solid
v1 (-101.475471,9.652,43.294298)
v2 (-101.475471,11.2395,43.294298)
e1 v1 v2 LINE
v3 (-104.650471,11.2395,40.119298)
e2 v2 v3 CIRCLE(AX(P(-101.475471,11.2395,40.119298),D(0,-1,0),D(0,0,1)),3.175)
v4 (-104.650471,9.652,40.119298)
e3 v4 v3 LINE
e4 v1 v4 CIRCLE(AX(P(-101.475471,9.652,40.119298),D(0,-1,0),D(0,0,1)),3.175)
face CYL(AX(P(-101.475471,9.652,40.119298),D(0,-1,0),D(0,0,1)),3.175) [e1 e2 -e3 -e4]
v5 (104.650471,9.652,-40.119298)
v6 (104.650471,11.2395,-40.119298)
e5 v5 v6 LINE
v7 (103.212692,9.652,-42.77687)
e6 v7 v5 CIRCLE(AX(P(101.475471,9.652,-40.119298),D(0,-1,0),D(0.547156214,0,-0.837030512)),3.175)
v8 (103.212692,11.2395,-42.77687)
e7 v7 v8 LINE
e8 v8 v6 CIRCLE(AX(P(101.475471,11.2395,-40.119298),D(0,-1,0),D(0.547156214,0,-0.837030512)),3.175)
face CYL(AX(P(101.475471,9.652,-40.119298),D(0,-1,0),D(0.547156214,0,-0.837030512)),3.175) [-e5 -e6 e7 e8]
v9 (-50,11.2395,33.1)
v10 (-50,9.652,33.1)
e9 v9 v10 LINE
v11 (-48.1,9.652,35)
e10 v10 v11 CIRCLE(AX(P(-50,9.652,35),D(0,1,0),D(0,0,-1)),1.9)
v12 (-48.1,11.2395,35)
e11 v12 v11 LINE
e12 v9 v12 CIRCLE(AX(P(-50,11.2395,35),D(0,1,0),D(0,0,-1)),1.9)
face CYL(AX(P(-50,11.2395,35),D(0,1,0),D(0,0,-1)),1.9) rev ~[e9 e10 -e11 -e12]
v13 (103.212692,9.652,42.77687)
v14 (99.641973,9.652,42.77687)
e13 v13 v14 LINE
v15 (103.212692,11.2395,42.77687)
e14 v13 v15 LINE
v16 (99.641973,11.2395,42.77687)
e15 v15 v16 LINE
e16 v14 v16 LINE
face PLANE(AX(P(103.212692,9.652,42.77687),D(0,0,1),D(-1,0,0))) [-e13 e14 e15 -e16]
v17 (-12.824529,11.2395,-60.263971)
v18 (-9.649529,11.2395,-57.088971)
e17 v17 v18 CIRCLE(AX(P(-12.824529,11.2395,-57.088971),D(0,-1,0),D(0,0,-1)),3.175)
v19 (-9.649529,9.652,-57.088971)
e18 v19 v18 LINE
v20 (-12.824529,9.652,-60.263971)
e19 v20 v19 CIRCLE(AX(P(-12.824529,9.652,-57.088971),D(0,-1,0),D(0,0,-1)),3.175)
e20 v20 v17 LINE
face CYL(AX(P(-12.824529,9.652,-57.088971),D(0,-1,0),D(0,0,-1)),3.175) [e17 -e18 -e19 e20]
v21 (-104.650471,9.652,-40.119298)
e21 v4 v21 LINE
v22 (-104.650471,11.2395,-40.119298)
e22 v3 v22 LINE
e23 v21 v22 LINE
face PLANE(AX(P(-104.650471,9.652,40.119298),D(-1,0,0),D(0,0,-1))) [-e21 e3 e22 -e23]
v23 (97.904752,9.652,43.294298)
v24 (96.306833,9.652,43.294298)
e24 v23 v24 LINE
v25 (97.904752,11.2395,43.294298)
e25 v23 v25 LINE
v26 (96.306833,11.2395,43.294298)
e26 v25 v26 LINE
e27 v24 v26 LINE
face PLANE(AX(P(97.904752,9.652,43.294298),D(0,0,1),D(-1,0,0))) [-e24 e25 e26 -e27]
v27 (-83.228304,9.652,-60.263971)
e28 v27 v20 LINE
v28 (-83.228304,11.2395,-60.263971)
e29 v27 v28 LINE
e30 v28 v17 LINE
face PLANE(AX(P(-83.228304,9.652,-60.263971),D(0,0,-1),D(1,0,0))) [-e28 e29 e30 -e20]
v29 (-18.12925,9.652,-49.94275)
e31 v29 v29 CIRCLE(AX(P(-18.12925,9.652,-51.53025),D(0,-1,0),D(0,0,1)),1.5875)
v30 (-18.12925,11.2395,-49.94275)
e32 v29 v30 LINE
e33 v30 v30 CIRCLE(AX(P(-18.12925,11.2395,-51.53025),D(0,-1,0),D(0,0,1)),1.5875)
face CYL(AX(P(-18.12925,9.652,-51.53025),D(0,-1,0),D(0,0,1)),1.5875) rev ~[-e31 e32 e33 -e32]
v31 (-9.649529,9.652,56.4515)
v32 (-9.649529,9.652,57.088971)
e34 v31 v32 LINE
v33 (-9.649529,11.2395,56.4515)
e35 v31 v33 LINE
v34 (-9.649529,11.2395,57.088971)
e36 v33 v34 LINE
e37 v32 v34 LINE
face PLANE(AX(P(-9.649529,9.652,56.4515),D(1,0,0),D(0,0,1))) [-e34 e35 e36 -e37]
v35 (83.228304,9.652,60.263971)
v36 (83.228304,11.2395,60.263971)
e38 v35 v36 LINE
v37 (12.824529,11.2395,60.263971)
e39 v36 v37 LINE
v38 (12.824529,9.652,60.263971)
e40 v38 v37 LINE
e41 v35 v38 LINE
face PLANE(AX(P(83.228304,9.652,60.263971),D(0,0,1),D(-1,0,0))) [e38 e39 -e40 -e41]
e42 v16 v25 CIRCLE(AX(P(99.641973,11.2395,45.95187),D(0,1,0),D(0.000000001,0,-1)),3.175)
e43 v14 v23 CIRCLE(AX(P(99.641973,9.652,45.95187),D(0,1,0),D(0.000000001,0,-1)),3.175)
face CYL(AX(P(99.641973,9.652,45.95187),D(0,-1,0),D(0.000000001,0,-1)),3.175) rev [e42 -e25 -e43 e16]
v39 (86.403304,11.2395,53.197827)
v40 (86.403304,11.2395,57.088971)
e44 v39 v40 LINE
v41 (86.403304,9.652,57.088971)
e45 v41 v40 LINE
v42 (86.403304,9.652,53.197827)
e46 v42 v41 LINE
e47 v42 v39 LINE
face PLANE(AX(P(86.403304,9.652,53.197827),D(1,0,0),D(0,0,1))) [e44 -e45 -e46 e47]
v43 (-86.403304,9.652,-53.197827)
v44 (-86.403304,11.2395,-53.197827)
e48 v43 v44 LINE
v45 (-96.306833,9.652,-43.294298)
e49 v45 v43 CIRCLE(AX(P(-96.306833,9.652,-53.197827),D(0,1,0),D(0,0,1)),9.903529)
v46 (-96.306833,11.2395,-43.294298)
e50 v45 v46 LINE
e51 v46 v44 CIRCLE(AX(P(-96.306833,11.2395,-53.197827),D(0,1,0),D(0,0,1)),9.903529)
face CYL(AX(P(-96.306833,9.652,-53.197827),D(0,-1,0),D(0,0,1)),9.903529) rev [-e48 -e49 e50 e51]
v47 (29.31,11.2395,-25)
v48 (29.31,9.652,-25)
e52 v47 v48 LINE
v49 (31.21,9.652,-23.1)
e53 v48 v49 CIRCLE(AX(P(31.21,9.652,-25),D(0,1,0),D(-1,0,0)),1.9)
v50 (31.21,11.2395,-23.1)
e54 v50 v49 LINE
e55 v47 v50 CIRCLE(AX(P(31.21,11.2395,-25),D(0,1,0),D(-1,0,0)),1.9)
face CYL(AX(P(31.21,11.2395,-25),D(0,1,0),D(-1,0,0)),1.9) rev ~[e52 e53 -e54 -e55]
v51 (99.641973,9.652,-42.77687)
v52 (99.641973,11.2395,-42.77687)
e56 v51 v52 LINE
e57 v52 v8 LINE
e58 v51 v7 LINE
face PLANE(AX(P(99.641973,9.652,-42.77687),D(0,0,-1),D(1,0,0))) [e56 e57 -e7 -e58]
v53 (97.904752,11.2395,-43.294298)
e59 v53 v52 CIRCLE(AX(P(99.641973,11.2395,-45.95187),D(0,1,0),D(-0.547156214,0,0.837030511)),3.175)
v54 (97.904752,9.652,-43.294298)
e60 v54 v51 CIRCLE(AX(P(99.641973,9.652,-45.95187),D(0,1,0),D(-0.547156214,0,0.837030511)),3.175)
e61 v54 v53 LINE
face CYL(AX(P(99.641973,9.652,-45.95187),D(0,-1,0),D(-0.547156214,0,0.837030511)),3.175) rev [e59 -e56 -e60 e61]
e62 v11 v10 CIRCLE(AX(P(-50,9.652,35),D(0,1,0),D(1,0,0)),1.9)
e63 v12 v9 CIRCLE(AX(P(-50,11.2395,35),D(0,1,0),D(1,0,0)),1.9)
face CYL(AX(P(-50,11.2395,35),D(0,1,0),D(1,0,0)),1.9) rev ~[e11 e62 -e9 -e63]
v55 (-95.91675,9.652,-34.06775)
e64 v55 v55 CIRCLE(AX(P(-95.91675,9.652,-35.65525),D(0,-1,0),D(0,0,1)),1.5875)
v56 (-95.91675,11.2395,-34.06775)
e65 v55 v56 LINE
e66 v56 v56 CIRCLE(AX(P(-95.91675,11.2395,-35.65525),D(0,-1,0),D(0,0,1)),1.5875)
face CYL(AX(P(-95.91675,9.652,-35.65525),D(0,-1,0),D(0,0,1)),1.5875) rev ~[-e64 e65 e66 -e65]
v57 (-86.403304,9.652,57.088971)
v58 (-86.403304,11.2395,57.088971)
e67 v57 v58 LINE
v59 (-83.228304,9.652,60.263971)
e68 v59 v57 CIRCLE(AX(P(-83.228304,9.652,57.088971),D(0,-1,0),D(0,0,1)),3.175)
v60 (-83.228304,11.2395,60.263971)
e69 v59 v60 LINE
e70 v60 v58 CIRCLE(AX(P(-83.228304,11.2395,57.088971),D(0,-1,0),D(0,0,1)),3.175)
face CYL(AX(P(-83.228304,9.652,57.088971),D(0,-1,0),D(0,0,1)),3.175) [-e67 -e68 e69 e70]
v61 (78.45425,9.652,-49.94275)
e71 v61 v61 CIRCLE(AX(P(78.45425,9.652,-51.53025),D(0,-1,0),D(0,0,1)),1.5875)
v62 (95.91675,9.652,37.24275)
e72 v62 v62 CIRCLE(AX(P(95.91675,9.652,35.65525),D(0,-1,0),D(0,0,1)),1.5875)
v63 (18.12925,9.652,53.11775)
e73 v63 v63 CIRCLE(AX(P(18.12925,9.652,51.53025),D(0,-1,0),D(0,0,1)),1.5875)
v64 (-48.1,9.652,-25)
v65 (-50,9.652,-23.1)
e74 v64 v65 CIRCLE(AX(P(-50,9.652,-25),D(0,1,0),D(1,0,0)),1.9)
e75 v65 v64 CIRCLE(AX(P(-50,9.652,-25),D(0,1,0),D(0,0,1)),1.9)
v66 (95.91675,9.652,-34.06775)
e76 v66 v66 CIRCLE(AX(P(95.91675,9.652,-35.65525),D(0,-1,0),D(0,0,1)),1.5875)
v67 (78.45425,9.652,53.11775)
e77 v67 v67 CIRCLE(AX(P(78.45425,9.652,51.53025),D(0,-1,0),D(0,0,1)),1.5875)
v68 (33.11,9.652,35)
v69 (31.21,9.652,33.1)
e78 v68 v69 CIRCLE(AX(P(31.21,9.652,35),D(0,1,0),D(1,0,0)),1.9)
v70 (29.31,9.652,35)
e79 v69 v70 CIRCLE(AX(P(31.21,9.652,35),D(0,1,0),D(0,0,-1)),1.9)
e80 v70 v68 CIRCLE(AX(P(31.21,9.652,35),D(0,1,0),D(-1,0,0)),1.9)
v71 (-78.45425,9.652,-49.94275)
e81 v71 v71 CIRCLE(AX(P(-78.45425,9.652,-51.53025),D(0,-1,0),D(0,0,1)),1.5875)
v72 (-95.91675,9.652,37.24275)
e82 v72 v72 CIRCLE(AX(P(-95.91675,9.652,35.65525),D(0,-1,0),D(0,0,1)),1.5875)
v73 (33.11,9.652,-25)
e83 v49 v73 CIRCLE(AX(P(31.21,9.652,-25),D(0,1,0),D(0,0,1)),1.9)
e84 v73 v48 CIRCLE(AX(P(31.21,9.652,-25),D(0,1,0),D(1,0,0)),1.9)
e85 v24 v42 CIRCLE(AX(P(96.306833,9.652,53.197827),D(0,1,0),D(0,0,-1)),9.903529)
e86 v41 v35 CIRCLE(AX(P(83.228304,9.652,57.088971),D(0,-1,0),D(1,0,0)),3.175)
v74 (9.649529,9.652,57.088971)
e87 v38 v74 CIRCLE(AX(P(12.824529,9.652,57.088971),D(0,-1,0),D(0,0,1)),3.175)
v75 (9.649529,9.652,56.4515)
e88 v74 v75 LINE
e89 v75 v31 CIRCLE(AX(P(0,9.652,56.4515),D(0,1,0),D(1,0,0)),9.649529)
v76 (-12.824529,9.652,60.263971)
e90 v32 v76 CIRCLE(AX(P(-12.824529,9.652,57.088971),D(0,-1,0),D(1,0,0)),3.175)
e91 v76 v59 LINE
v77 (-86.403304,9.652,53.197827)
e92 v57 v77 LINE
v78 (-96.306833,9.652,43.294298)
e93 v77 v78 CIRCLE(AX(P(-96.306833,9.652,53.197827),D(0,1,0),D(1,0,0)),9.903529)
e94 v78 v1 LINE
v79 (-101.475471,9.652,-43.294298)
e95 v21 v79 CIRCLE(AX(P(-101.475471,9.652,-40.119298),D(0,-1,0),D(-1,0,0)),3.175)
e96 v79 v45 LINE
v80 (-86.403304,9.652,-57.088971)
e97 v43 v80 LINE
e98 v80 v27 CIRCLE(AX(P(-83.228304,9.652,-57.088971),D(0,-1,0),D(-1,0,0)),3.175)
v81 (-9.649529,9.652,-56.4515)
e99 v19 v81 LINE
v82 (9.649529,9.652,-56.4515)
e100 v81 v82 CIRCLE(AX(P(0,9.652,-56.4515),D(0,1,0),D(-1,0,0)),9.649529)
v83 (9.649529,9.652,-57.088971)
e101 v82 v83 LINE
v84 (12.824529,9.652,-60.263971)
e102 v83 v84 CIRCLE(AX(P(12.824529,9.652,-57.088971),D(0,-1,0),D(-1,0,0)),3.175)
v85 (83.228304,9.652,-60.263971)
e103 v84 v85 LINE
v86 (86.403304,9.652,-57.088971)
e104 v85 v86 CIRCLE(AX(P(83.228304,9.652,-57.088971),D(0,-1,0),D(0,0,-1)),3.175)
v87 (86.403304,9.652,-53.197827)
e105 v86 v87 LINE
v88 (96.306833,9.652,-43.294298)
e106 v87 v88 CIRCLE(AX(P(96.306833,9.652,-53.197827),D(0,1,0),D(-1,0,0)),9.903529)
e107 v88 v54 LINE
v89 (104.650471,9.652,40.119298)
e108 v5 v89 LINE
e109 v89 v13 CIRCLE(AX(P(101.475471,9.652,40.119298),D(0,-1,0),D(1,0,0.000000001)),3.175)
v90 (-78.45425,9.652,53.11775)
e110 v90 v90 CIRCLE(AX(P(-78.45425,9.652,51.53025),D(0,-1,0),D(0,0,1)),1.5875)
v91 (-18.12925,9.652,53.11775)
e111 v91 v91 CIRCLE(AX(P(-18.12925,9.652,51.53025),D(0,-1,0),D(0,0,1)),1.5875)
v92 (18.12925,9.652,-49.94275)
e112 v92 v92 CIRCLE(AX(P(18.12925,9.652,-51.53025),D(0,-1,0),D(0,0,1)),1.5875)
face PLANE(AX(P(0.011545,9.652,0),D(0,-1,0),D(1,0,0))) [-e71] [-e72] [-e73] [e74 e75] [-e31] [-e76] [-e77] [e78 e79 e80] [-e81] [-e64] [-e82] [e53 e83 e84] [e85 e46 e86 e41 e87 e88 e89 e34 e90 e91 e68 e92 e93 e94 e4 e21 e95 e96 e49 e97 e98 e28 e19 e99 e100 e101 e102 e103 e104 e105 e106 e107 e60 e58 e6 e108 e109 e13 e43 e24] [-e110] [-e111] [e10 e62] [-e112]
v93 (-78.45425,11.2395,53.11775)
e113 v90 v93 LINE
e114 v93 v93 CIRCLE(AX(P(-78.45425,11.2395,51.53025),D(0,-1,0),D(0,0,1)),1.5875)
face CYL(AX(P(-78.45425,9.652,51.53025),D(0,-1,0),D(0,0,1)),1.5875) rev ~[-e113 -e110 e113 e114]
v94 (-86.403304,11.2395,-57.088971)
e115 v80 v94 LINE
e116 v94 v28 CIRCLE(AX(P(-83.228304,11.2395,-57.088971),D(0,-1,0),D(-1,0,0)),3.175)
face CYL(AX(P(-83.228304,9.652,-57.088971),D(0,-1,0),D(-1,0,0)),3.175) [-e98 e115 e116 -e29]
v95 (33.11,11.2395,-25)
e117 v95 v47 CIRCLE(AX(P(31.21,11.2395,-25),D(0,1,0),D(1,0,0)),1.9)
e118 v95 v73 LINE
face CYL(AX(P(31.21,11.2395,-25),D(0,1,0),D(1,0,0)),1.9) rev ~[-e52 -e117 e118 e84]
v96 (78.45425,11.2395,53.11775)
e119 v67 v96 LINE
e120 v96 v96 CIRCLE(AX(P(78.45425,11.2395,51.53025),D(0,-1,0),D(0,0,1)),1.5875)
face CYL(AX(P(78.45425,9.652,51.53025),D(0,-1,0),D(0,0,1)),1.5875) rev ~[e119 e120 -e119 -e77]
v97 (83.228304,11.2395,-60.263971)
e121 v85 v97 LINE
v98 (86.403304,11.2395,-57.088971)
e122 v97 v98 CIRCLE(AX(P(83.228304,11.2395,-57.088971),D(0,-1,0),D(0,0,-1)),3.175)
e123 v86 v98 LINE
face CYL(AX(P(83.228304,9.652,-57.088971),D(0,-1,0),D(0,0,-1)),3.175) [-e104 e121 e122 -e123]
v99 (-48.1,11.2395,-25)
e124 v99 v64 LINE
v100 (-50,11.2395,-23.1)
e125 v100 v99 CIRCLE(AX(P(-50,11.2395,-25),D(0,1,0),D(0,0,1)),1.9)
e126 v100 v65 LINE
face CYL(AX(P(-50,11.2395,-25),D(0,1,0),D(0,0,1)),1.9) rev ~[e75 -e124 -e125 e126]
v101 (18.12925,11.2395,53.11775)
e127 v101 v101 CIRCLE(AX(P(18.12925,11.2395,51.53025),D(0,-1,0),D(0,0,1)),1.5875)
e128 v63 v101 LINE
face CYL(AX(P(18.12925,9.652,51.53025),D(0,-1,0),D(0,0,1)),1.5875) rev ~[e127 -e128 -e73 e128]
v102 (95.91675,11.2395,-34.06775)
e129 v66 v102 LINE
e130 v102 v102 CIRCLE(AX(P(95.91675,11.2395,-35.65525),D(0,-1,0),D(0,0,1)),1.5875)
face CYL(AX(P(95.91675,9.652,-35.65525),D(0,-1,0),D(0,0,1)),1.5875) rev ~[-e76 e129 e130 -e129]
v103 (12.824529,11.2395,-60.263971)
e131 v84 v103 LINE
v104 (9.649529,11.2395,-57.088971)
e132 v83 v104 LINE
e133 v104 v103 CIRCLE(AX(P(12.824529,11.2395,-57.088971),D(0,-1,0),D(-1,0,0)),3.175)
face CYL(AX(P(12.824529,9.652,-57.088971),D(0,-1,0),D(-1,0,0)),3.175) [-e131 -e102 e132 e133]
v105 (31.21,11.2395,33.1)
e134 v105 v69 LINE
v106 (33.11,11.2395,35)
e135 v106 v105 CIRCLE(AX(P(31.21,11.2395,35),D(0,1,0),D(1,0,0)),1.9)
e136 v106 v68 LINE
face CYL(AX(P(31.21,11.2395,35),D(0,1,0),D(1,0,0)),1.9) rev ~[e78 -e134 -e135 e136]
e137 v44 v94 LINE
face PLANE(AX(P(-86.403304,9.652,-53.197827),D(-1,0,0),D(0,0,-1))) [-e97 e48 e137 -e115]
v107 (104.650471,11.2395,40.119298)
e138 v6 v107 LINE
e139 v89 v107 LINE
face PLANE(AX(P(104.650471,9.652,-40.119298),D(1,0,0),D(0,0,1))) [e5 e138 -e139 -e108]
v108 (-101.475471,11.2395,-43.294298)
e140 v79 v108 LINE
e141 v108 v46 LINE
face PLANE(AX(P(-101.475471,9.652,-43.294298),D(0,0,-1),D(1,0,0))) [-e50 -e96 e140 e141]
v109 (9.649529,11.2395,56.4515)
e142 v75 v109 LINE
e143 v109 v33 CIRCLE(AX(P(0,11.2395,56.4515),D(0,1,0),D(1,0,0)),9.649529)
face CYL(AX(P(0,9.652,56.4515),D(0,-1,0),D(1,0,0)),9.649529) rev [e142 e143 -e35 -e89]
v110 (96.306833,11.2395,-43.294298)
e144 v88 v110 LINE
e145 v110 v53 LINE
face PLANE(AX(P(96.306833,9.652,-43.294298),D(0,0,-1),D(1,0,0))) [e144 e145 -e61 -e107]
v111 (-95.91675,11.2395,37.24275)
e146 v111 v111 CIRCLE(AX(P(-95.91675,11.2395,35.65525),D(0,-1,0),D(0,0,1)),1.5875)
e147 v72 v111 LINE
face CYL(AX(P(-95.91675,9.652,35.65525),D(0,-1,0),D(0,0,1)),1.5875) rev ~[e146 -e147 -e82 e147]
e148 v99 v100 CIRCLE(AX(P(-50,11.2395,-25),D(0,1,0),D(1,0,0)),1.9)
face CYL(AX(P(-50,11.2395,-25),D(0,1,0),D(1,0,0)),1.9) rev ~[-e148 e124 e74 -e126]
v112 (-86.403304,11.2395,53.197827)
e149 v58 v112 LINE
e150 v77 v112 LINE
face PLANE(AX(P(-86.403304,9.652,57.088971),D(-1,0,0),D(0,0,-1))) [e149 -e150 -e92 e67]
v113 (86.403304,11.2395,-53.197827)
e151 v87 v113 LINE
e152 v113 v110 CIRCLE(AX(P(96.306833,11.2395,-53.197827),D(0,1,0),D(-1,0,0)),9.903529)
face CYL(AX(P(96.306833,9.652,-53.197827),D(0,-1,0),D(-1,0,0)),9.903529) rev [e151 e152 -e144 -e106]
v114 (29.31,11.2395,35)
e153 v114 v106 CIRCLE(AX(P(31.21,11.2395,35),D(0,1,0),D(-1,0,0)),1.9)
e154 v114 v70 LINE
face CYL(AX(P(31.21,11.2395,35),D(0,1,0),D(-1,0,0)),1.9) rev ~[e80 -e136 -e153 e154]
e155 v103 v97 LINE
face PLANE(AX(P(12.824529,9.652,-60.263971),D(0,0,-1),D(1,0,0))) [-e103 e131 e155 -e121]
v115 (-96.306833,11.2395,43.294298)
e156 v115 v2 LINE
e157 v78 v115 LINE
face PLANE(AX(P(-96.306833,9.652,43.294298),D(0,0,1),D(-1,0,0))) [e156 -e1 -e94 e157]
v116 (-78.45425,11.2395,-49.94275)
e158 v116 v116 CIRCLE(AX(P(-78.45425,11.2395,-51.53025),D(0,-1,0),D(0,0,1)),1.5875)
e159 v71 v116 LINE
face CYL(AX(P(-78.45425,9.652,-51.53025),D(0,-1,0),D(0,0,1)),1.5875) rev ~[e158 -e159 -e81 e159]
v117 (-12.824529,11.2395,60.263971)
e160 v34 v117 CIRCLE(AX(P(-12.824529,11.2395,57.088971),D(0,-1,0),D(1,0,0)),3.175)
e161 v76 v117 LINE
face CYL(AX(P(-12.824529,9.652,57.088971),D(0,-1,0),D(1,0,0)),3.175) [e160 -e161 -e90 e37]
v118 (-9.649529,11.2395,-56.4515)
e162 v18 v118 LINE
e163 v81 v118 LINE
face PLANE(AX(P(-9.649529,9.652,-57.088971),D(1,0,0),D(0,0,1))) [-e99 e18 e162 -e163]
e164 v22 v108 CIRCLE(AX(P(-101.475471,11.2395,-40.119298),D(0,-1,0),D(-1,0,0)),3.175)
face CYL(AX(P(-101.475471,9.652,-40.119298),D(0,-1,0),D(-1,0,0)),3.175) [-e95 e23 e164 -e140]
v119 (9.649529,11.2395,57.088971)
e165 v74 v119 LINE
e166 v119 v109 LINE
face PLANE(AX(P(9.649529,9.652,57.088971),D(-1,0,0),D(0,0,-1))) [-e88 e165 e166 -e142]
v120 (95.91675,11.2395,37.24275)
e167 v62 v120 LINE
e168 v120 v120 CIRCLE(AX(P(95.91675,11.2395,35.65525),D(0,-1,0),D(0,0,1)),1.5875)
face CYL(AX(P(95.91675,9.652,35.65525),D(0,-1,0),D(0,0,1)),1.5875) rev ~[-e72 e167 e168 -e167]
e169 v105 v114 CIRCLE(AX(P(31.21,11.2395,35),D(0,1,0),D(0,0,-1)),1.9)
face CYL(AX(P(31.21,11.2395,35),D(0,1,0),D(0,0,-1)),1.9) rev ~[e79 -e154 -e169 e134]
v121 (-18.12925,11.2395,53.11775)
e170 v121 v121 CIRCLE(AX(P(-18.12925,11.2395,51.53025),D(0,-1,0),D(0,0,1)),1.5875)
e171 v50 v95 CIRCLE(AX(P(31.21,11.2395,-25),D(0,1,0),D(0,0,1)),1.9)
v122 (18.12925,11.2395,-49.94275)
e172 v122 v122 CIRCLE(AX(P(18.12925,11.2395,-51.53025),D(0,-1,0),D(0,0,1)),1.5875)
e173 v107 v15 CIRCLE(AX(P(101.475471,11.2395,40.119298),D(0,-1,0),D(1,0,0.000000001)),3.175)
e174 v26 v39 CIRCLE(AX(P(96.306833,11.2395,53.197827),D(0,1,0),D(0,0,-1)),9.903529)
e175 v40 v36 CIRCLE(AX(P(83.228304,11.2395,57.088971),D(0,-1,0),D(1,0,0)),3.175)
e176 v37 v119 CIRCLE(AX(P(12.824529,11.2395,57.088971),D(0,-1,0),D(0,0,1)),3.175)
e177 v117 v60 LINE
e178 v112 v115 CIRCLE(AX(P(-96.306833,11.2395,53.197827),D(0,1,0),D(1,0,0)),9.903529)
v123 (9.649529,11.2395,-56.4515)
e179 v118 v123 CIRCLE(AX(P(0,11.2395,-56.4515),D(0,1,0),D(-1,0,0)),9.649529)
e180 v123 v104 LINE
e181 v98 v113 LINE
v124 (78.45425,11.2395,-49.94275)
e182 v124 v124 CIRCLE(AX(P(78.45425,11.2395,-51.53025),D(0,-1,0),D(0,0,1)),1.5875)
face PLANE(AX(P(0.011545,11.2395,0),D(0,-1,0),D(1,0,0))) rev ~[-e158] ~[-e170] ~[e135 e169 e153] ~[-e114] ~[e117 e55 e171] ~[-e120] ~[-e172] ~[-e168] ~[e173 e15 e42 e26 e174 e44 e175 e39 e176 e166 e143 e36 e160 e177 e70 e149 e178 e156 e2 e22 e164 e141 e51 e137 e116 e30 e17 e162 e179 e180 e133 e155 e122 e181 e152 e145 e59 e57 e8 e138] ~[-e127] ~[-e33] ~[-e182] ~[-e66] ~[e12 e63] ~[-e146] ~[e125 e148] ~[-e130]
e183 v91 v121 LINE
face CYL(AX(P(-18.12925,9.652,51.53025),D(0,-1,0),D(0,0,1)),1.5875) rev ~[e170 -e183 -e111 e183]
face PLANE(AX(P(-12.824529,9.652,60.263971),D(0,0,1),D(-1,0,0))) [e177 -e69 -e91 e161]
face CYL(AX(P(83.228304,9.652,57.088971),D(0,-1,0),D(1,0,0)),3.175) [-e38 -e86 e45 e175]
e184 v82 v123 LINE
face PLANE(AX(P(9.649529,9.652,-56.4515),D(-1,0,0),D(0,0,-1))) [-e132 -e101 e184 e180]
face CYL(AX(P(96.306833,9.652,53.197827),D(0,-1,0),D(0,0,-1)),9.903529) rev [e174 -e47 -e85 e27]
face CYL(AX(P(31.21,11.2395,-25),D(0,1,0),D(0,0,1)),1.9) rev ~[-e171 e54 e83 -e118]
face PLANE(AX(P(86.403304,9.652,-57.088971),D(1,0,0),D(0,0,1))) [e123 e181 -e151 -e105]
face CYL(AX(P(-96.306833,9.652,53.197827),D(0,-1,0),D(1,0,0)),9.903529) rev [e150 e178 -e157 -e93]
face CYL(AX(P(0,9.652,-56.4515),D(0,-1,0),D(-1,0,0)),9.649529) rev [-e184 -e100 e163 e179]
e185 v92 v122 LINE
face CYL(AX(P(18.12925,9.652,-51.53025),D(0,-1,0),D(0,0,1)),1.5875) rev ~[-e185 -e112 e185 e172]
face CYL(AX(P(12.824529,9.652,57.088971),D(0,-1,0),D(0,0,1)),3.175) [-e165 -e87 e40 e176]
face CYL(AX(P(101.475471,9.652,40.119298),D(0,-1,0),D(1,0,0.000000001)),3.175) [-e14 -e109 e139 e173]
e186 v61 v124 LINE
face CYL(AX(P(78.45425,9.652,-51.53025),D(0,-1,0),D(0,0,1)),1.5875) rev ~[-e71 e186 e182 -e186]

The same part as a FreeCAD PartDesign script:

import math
import FreeCAD as App
import Part
import Sketcher
Q = App.Units.Quantity

doc = App.newDocument("Part")
body = doc.addObject("PartDesign::Body", "Body")

sketch1 = doc.addObject("Sketcher::SketchObject", "Sketch")
body.addObject(sketch1)
sketch1.AttachmentSupport = (doc.XZ_Plane, [""])
sketch1.MapMode = "FlatFace"
sketch1.AttachmentOffset = App.Placement(App.Vector(0, 0, -0.38 * 25.4), App.Rotation())
sketch1.addGeometry(Part.LineSegment(App.Vector(-9.6, -57.1, 0), App.Vector(-9.6, -56.5, 0)), False)
sketch1.addGeometry(Part.ArcOfCircle(Part.Circle(App.Vector(0, -56.5, 0), App.Vector(0, 0, 1), 9.6), math.radians(0), math.radians(180)), False)
sketch1.addGeometry(Part.LineSegment(App.Vector(9.6, -56.5, 0), App.Vector(9.6, -57.1, 0)), False)
sketch1.addGeometry(Part.ArcOfCircle(Part.Circle(App.Vector(12.8, -57.1, 0), App.Vector(0, 0, 1), 3.2), math.radians(-180), math.radians(-90)), False)
sketch1.addGeometry(Part.LineSegment(App.Vector(12.8, -60.3, 0), App.Vector(83.2, -60.3, 0)), False)
sketch1.addGeometry(Part.ArcOfCircle(Part.Circle(App.Vector(83.2, -57.1, 0), App.Vector(0, 0, 1), 3.2), math.radians(-90), math.radians(0)), False)
sketch1.addGeometry(Part.LineSegment(App.Vector(86.4, -57.1, 0), App.Vector(86.4, -53.2, 0)), False)
sketch1.addGeometry(Part.ArcOfCircle(Part.Circle(App.Vector(96.3, -53.2, 0), App.Vector(0, 0, 1), 9.9), math.radians(90), math.radians(180)), False)
sketch1.addGeometry(Part.LineSegment(App.Vector(96.3, -43.3, 0), App.Vector(97.9, -43.3, 0)), False)
sketch1.addGeometry(Part.ArcOfCircle(Part.Circle(App.Vector(99.6, -46, 0), App.Vector(0, 0, 1), 3.2), math.radians(90), math.radians(123)), False)
sketch1.addGeometry(Part.LineSegment(App.Vector(99.6, -42.8, 0), App.Vector(103.2, -42.8, 0)), False)
sketch1.addGeometry(Part.ArcOfCircle(Part.Circle(App.Vector(101.5, -40.1, 0), App.Vector(0, 0, 1), 3.2), math.radians(-57), math.radians(0)), False)
sketch1.addGeometry(Part.LineSegment(App.Vector(104.7, -40.1, 0), App.Vector(104.7, 40.1, 0)), False)
sketch1.addGeometry(Part.ArcOfCircle(Part.Circle(App.Vector(101.5, 40.1, 0), App.Vector(0, 0, 1), 3.2), math.radians(0), math.radians(57)), False)
sketch1.addGeometry(Part.LineSegment(App.Vector(103.2, 42.8, 0), App.Vector(99.6, 42.8, 0)), False)
sketch1.addGeometry(Part.ArcOfCircle(Part.Circle(App.Vector(99.6, 46, 0), App.Vector(0, 0, 1), 3.2), math.radians(-123), math.radians(-90)), False)
sketch1.addGeometry(Part.LineSegment(App.Vector(97.9, 43.3, 0), App.Vector(96.3, 43.3, 0)), False)
sketch1.addGeometry(Part.ArcOfCircle(Part.Circle(App.Vector(96.3, 53.2, 0), App.Vector(0, 0, 1), 9.9), math.radians(180), math.radians(270)), False)
sketch1.addGeometry(Part.LineSegment(App.Vector(86.4, 53.2, 0), App.Vector(86.4, 57.1, 0)), False)
sketch1.addGeometry(Part.ArcOfCircle(Part.Circle(App.Vector(83.2, 57.1, 0), App.Vector(0, 0, 1), 3.2), math.radians(0), math.radians(90)), False)
sketch1.addGeometry(Part.LineSegment(App.Vector(83.2, 60.3, 0), App.Vector(12.8, 60.3, 0)), False)
sketch1.addGeometry(Part.ArcOfCircle(Part.Circle(App.Vector(12.8, 57.1, 0), App.Vector(0, 0, 1), 3.2), math.radians(90), math.radians(180)), False)
sketch1.addGeometry(Part.LineSegment(App.Vector(9.6, 57.1, 0), App.Vector(9.6, 56.5, 0)), False)
sketch1.addGeometry(Part.ArcOfCircle(Part.Circle(App.Vector(0, 56.5, 0), App.Vector(0, 0, 1), 9.6), math.radians(180), math.radians(360)), False)
sketch1.addGeometry(Part.LineSegment(App.Vector(-9.6, 56.5, 0), App.Vector(-9.6, 57.1, 0)), False)
sketch1.addGeometry(Part.ArcOfCircle(Part.Circle(App.Vector(-12.8, 57.1, 0), App.Vector(0, 0, 1), 3.2), math.radians(0), math.radians(90)), False)
sketch1.addGeometry(Part.LineSegment(App.Vector(-12.8, 60.3, 0), App.Vector(-83.2, 60.3, 0)), False)
sketch1.addGeometry(Part.ArcOfCircle(Part.Circle(App.Vector(-83.2, 57.1, 0), App.Vector(0, 0, 1), 3.2), math.radians(90), math.radians(180)), False)
sketch1.addGeometry(Part.LineSegment(App.Vector(-86.4, 57.1, 0), App.Vector(-86.4, 53.2, 0)), False)
sketch1.addGeometry(Part.ArcOfCircle(Part.Circle(App.Vector(-96.3, 53.2, 0), App.Vector(0, 0, 1), 9.9), math.radians(-90), math.radians(0)), False)
sketch1.addGeometry(Part.LineSegment(App.Vector(-96.3, 43.3, 0), App.Vector(-101.5, 43.3, 0)), False)
sketch1.addGeometry(Part.ArcOfCircle(Part.Circle(App.Vector(-101.5, 40.1, 0), App.Vector(0, 0, 1), 3.2), math.radians(90), math.radians(180)), False)
sketch1.addGeometry(Part.LineSegment(App.Vector(-104.7, 40.1, 0), App.Vector(-104.7, -40.1, 0)), False)
sketch1.addGeometry(Part.ArcOfCircle(Part.Circle(App.Vector(-101.5, -40.1, 0), App.Vector(0, 0, 1), 3.2), math.radians(-180), math.radians(-90)), False)
sketch1.addGeometry(Part.LineSegment(App.Vector(-101.5, -43.3, 0), App.Vector(-96.3, -43.3, 0)), False)
sketch1.addGeometry(Part.ArcOfCircle(Part.Circle(App.Vector(-96.3, -53.2, 0), App.Vector(0, 0, 1), 9.9), math.radians(0), math.radians(90)), False)
sketch1.addGeometry(Part.LineSegment(App.Vector(-86.4, -53.2, 0), App.Vector(-86.4, -57.1, 0)), False)
sketch1.addGeometry(Part.ArcOfCircle(Part.Circle(App.Vector(-83.2, -57.1, 0), App.Vector(0, 0, 1), 3.2), math.radians(-180), math.radians(-90)), False)
sketch1.addGeometry(Part.LineSegment(App.Vector(-83.2, -60.3, 0), App.Vector(-12.8, -60.3, 0)), False)
sketch1.addGeometry(Part.ArcOfCircle(Part.Circle(App.Vector(-12.8, -57.1, 0), App.Vector(0, 0, 1), 3.2), math.radians(-90), math.radians(0)), False)
sketch1.addGeometry(Part.Circle(App.Vector(-78.5, -51.5, 0), App.Vector(0, 0, 1), 1.6), False)
sketch1.addGeometry(Part.Circle(App.Vector(-95.9, -35.7, 0), App.Vector(0, 0, 1), 1.6), False)
sketch1.addGeometry(Part.Circle(App.Vector(-18.1, -51.5, 0), App.Vector(0, 0, 1), 1.6), False)
sketch1.addGeometry(Part.Circle(App.Vector(18.1, -51.5, 0), App.Vector(0, 0, 1), 1.6), False)
sketch1.addGeometry(Part.Circle(App.Vector(78.5, -51.5, 0), App.Vector(0, 0, 1), 1.6), False)
sketch1.addGeometry(Part.Circle(App.Vector(95.9, -35.7, 0), App.Vector(0, 0, 1), 1.6), False)
sketch1.addGeometry(Part.Circle(App.Vector(-95.9, 35.7, 0), App.Vector(0, 0, 1), 1.6), False)
sketch1.addGeometry(Part.Circle(App.Vector(-78.5, 51.5, 0), App.Vector(0, 0, 1), 1.6), False)
sketch1.addGeometry(Part.Circle(App.Vector(-18.1, 51.5, 0), App.Vector(0, 0, 1), 1.6), False)
sketch1.addGeometry(Part.Circle(App.Vector(18.1, 51.5, 0), App.Vector(0, 0, 1), 1.6), False)
sketch1.addGeometry(Part.Circle(App.Vector(95.9, 35.7, 0), App.Vector(0, 0, 1), 1.6), False)
sketch1.addGeometry(Part.Circle(App.Vector(78.5, 51.5, 0), App.Vector(0, 0, 1), 1.6), False)
sketch1.addConstraint(Sketcher.Constraint("Tangent", 0, 2, 1, 2))
sketch1.addConstraint(Sketcher.Constraint("Tangent", 1, 1, 2, 1))
sketch1.addConstraint(Sketcher.Constraint("Tangent", 2, 2, 3, 1))
sketch1.addConstraint(Sketcher.Constraint("Tangent", 3, 2, 4, 1))
sketch1.addConstraint(Sketcher.Constraint("Tangent", 4, 2, 5, 1))
sketch1.addConstraint(Sketcher.Constraint("Tangent", 5, 2, 6, 1))
sketch1.addConstraint(Sketcher.Constraint("Tangent", 6, 2, 7, 2))
sketch1.addConstraint(Sketcher.Constraint("Tangent", 7, 1, 8, 1))
sketch1.addConstraint(Sketcher.Constraint("Coincident", 8, 2, 9, 2))
sketch1.addConstraint(Sketcher.Constraint("Tangent", 9, 1, 10, 1))
sketch1.addConstraint(Sketcher.Constraint("Coincident", 10, 2, 11, 1))
sketch1.addConstraint(Sketcher.Constraint("Tangent", 11, 2, 12, 1))
sketch1.addConstraint(Sketcher.Constraint("Tangent", 12, 2, 13, 1))
sketch1.addConstraint(Sketcher.Constraint("Coincident", 13, 2, 14, 1))
sketch1.addConstraint(Sketcher.Constraint("Tangent", 14, 2, 15, 2))
sketch1.addConstraint(Sketcher.Constraint("Coincident", 15, 1, 16, 1))
sketch1.addConstraint(Sketcher.Constraint("Tangent", 16, 2, 17, 2))
sketch1.addConstraint(Sketcher.Constraint("Tangent", 17, 1, 18, 1))
sketch1.addConstraint(Sketcher.Constraint("Tangent", 18, 2, 19, 1))
sketch1.addConstraint(Sketcher.Constraint("Tangent", 19, 2, 20, 1))
sketch1.addConstraint(Sketcher.Constraint("Tangent", 20, 2, 21, 1))
sketch1.addConstraint(Sketcher.Constraint("Tangent", 21, 2, 22, 1))
sketch1.addConstraint(Sketcher.Constraint("Tangent", 22, 2, 23, 2))
sketch1.addConstraint(Sketcher.Constraint("Tangent", 23, 1, 24, 1))
sketch1.addConstraint(Sketcher.Constraint("Tangent", 24, 2, 25, 1))
sketch1.addConstraint(Sketcher.Constraint("Tangent", 25, 2, 26, 1))
sketch1.addConstraint(Sketcher.Constraint("Tangent", 26, 2, 27, 1))
sketch1.addConstraint(Sketcher.Constraint("Tangent", 27, 2, 28, 1))
sketch1.addConstraint(Sketcher.Constraint("Tangent", 28, 2, 29, 2))
sketch1.addConstraint(Sketcher.Constraint("Tangent", 29, 1, 30, 1))
sketch1.addConstraint(Sketcher.Constraint("Tangent", 30, 2, 31, 1))
sketch1.addConstraint(Sketcher.Constraint("Tangent", 31, 2, 32, 1))
sketch1.addConstraint(Sketcher.Constraint("Tangent", 32, 2, 33, 1))
sketch1.addConstraint(Sketcher.Constraint("Tangent", 33, 2, 34, 1))
sketch1.addConstraint(Sketcher.Constraint("Tangent", 34, 2, 35, 2))
sketch1.addConstraint(Sketcher.Constraint("Tangent", 35, 1, 36, 1))
sketch1.addConstraint(Sketcher.Constraint("Tangent", 36, 2, 37, 1))
sketch1.addConstraint(Sketcher.Constraint("Tangent", 37, 2, 38, 1))
sketch1.addConstraint(Sketcher.Constraint("Tangent", 38, 2, 39, 1))
sketch1.addConstraint(Sketcher.Constraint("Tangent", 39, 2, 0, 1))
sketch1.addConstraint(Sketcher.Constraint("Vertical", 0))
sketch1.addConstraint(Sketcher.Constraint("Vertical", 2))
sketch1.addConstraint(Sketcher.Constraint("Horizontal", 4))
sketch1.addConstraint(Sketcher.Constraint("Vertical", 6))
sketch1.addConstraint(Sketcher.Constraint("Horizontal", 8))
sketch1.addConstraint(Sketcher.Constraint("Horizontal", 10))
sketch1.addConstraint(Sketcher.Constraint("Vertical", 12))
sketch1.addConstraint(Sketcher.Constraint("Horizontal", 14))
sketch1.addConstraint(Sketcher.Constraint("Horizontal", 16))
sketch1.addConstraint(Sketcher.Constraint("Vertical", 18))
sketch1.addConstraint(Sketcher.Constraint("Horizontal", 20))
sketch1.addConstraint(Sketcher.Constraint("Vertical", 22))
sketch1.addConstraint(Sketcher.Constraint("Vertical", 24))
sketch1.addConstraint(Sketcher.Constraint("Horizontal", 26))
sketch1.addConstraint(Sketcher.Constraint("Vertical", 28))
sketch1.addConstraint(Sketcher.Constraint("Horizontal", 30))
sketch1.addConstraint(Sketcher.Constraint("Vertical", 32))
sketch1.addConstraint(Sketcher.Constraint("Horizontal", 34))
sketch1.addConstraint(Sketcher.Constraint("Vertical", 36))
sketch1.addConstraint(Sketcher.Constraint("Horizontal", 38))
sketch1.addConstraint(Sketcher.Constraint("Equal", 3, 5))
sketch1.addConstraint(Sketcher.Constraint("Equal", 5, 9))
sketch1.addConstraint(Sketcher.Constraint("Equal", 9, 11))
sketch1.addConstraint(Sketcher.Constraint("Equal", 11, 13))
sketch1.addConstraint(Sketcher.Constraint("Equal", 13, 15))
sketch1.addConstraint(Sketcher.Constraint("Equal", 7, 17))
sketch1.addConstraint(Sketcher.Constraint("Equal", 15, 19))
sketch1.addConstraint(Sketcher.Constraint("Equal", 19, 21))
sketch1.addConstraint(Sketcher.Constraint("Equal", 1, 23))
sketch1.addConstraint(Sketcher.Constraint("Equal", 21, 25))
sketch1.addConstraint(Sketcher.Constraint("Equal", 25, 27))
sketch1.addConstraint(Sketcher.Constraint("Equal", 17, 29))
sketch1.addConstraint(Sketcher.Constraint("Equal", 27, 31))
sketch1.addConstraint(Sketcher.Constraint("Equal", 31, 33))
sketch1.addConstraint(Sketcher.Constraint("Equal", 29, 35))
sketch1.addConstraint(Sketcher.Constraint("Equal", 33, 37))
sketch1.addConstraint(Sketcher.Constraint("Equal", 37, 39))
sketch1.addConstraint(Sketcher.Constraint("Equal", 40, 41))
sketch1.addConstraint(Sketcher.Constraint("Equal", 41, 42))
sketch1.addConstraint(Sketcher.Constraint("Equal", 42, 43))
sketch1.addConstraint(Sketcher.Constraint("Equal", 43, 44))
sketch1.addConstraint(Sketcher.Constraint("Equal", 44, 45))
sketch1.addConstraint(Sketcher.Constraint("Equal", 45, 46))
sketch1.addConstraint(Sketcher.Constraint("Equal", 46, 47))
sketch1.addConstraint(Sketcher.Constraint("Equal", 47, 48))
sketch1.addConstraint(Sketcher.Constraint("Equal", 48, 49))
sketch1.addConstraint(Sketcher.Constraint("Equal", 49, 50))
sketch1.addConstraint(Sketcher.Constraint("Equal", 50, 51))
sketch1.addConstraint(Sketcher.Constraint("Symmetric", 1, 3, 23, 3, -1, 1))
sketch1.addConstraint(Sketcher.Constraint("Symmetric", 5, 3, 27, 3, -1, 1))
sketch1.addConstraint(Sketcher.Constraint("Symmetric", 11, 3, 31, 3, -1, 1))
sketch1.addConstraint(Sketcher.Constraint("Symmetric", 17, 3, 35, 3, -1, 1))
sketch1.addConstraint(Sketcher.Constraint("Symmetric", 45, 3, 46, 3, -1, 1))
sketch1.addConstraint(Sketcher.Constraint("Symmetric", 44, 3, 47, 3, -1, 1))
sketch1.addConstraint(Sketcher.Constraint("Symmetric", 43, 3, 48, 3, -1, 1))
sketch1.addConstraint(Sketcher.Constraint("Symmetric", 42, 3, 49, 3, -1, 1))
sketch1.addConstraint(Sketcher.Constraint("Symmetric", 41, 3, 50, 3, -1, 1))
sketch1.addConstraint(Sketcher.Constraint("Symmetric", 40, 3, 51, 3, -1, 1))
sketch1.addConstraint(Sketcher.Constraint("Symmetric", 21, 3, 25, 3, -2))
sketch1.addConstraint(Sketcher.Constraint("Symmetric", 17, 3, 29, 3, -2))
sketch1.addConstraint(Sketcher.Constraint("Symmetric", 42, 3, 43, 3, -2))
sketch1.addConstraint(Sketcher.Constraint("Symmetric", 40, 3, 44, 3, -2))
sketch1.addConstraint(Sketcher.Constraint("Symmetric", 41, 3, 45, 3, -2))
sketch1.addConstraint(Sketcher.Constraint("Symmetric", 9, 3, 15, 3, -1))
sketch1.addConstraint(Sketcher.Constraint("Horizontal", 13, 3, 31, 3))
sketch1.addConstraint(Sketcher.Constraint("Horizontal", 7, 3, 35, 3))
sketch1.addConstraint(Sketcher.Constraint("Horizontal", 5, 3, 37, 3))
sketch1.addConstraint(Sketcher.Constraint("Horizontal", 40, 3, 42, 3))
sketch1.addConstraint(Sketcher.Constraint("Diameter", 40, Q("0.125 in")))
sketch1.addConstraint(Sketcher.Constraint("Radius", 3, Q("0.125 in")))
sketch1.addConstraint(Sketcher.Constraint("DistanceY", 12, 1, 12, 2, Q("3.1589998 in")))
sketch1.addConstraint(Sketcher.Constraint("Radius", 1, 9.649529))
sketch1.addConstraint(Sketcher.Constraint("Radius", 7, 9.903529))
sketch1.addConstraint(Sketcher.Constraint("DistanceY", 1, 3, -1, 1, Q("2.2225 in")))
sketch1.addConstraint(Sketcher.Constraint("DistanceX", 8, 1, 8, 2, 1.597919))
sketch1.addConstraint(Sketcher.Constraint("DistanceX", 10, 1, 10, 2, 3.570719))
sketch1.addConstraint(Sketcher.Constraint("DistanceY", 0, 1, 0, 2, 0.637471))
sketch1.addConstraint(Sketcher.Constraint("DistanceX", 4, 1, 4, 2, 70.403775))
sketch1.addConstraint(Sketcher.Constraint("DistanceY", 9, 3, -1, 1, 45.95187))
sketch1.addConstraint(Sketcher.Constraint("DistanceX", 40, 3, -1, 1, 78.45425))
sketch1.addConstraint(Sketcher.Constraint("DistanceY", 40, 3, -1, 1, 51.53025))
sketch1.addConstraint(Sketcher.Constraint("DistanceX", 41, 3, -1, 1, 95.91675))
sketch1.addConstraint(Sketcher.Constraint("DistanceY", 41, 3, -1, 1, 35.65525))
sketch1.addConstraint(Sketcher.Constraint("DistanceX", 42, 3, -1, 1, 18.12925))
pad1 = doc.addObject("PartDesign::Pad", "Pad")
body.addObject(pad1)
pad1.Profile = sketch1
pad1.Length = Q("0.0625 in")
pad1.Reversed = True

sketch2 = doc.addObject("Sketcher::SketchObject", "Sketch001")
body.addObject(sketch2)
sketch2.AttachmentSupport = (doc.XZ_Plane, [""])
sketch2.MapMode = "FlatFace"
sketch2.AttachmentOffset = App.Placement(App.Vector(0, 0, -0.4425 * 25.4), App.Rotation())
sketch2.addGeometry(Part.ArcOfCircle(Part.Circle(App.Vector(-50, -25, 0), App.Vector(0, 0, 1), 1.9), math.radians(90), math.radians(360)), False)
sketch2.addGeometry(Part.ArcOfCircle(Part.Circle(App.Vector(-50, -25, 0), App.Vector(0, 0, 1), 1.9), math.radians(0), math.radians(90)), False)
sketch2.addGeometry(Part.ArcOfCircle(Part.Circle(App.Vector(-50, 35, 0), App.Vector(0, 0, 1), 1.9), math.radians(0), math.radians(270)), False)
sketch2.addGeometry(Part.ArcOfCircle(Part.Circle(App.Vector(-50, 35, 0), App.Vector(0, 0, 1), 1.9), math.radians(-90), math.radians(0)), False)
sketch2.addGeometry(Part.ArcOfCircle(Part.Circle(App.Vector(31.2, 35, 0), App.Vector(0, 0, 1), 1.9), math.radians(-180), math.radians(-90)), False)
sketch2.addGeometry(Part.ArcOfCircle(Part.Circle(App.Vector(31.2, 35, 0), App.Vector(0, 0, 1), 1.9), math.radians(0), math.radians(180)), False)
sketch2.addGeometry(Part.ArcOfCircle(Part.Circle(App.Vector(31.2, 35, 0), App.Vector(0, 0, 1), 1.9), math.radians(-90), math.radians(0)), False)
sketch2.addGeometry(Part.ArcOfCircle(Part.Circle(App.Vector(31.2, -25, 0), App.Vector(0, 0, 1), 1.9), math.radians(180), math.radians(360)), False)
sketch2.addGeometry(Part.ArcOfCircle(Part.Circle(App.Vector(31.2, -25, 0), App.Vector(0, 0, 1), 1.9), math.radians(90), math.radians(180)), False)
sketch2.addGeometry(Part.ArcOfCircle(Part.Circle(App.Vector(31.2, -25, 0), App.Vector(0, 0, 1), 1.9), math.radians(0), math.radians(90)), False)
sketch2.addConstraint(Sketcher.Constraint("Tangent", 0, 1, 1, 2))
sketch2.addConstraint(Sketcher.Constraint("Coincident", 1, 1, 0, 2))
sketch2.addConstraint(Sketcher.Constraint("Tangent", 2, 1, 3, 2))
sketch2.addConstraint(Sketcher.Constraint("Coincident", 3, 1, 2, 2))
sketch2.addConstraint(Sketcher.Constraint("Tangent", 4, 1, 5, 2))
sketch2.addConstraint(Sketcher.Constraint("Tangent", 5, 1, 6, 2))
sketch2.addConstraint(Sketcher.Constraint("Tangent", 6, 1, 4, 2))
sketch2.addConstraint(Sketcher.Constraint("Tangent", 7, 1, 8, 2))
sketch2.addConstraint(Sketcher.Constraint("Tangent", 8, 1, 9, 2))
sketch2.addConstraint(Sketcher.Constraint("Tangent", 9, 1, 7, 2))
sketch2.addConstraint(Sketcher.Constraint("Equal", 1, 2))
sketch2.addConstraint(Sketcher.Constraint("Equal", 3, 4))
sketch2.addConstraint(Sketcher.Constraint("Equal", 6, 7))
sketch2.addConstraint(Sketcher.Constraint("Horizontal", 3, 3, 4, 3))
sketch2.addConstraint(Sketcher.Constraint("Horizontal", 1, 3, 7, 3))
sketch2.addConstraint(Sketcher.Constraint("Horizontal", 9, 3, 1, 1))
sketch2.addConstraint(Sketcher.Constraint("Horizontal", 6, 3, 2, 1))
sketch2.addConstraint(Sketcher.Constraint("Horizontal", 2, 1, 4, 1))
sketch2.addConstraint(Sketcher.Constraint("Horizontal", 4, 1, 5, 1))
sketch2.addConstraint(Sketcher.Constraint("Horizontal", 1, 1, 7, 1))
sketch2.addConstraint(Sketcher.Constraint("Horizontal", 7, 1, 9, 1))
sketch2.addConstraint(Sketcher.Constraint("Vertical", 1, 3, 2, 3))
sketch2.addConstraint(Sketcher.Constraint("Vertical", 6, 3, 7, 3))
sketch2.addConstraint(Sketcher.Constraint("Vertical", 3, 3, 0, 1))
sketch2.addConstraint(Sketcher.Constraint("Vertical", 0, 1, 3, 1))
sketch2.addConstraint(Sketcher.Constraint("Vertical", 9, 3, 6, 1))
sketch2.addConstraint(Sketcher.Constraint("Vertical", 6, 1, 8, 1))
sketch2.addConstraint(Sketcher.Constraint("Radius", 0, 1.9))
sketch2.addConstraint(Sketcher.Constraint("DistanceX", 0, 3, -1, 1, 50.0))
sketch2.addConstraint(Sketcher.Constraint("DistanceY", 0, 3, -1, 1, 25.0))
sketch2.addConstraint(Sketcher.Constraint("DistanceY", -1, 1, 2, 3, 35.0))
sketch2.addConstraint(Sketcher.Constraint("DistanceX", -1, 1, 4, 3, 31.21))
pocket1 = doc.addObject("PartDesign::Pocket", "Pocket")
body.addObject(pocket1)
pocket1.Profile = sketch2
pocket1.Length = 10
pocket1.Reversed = True

doc.recompute()
